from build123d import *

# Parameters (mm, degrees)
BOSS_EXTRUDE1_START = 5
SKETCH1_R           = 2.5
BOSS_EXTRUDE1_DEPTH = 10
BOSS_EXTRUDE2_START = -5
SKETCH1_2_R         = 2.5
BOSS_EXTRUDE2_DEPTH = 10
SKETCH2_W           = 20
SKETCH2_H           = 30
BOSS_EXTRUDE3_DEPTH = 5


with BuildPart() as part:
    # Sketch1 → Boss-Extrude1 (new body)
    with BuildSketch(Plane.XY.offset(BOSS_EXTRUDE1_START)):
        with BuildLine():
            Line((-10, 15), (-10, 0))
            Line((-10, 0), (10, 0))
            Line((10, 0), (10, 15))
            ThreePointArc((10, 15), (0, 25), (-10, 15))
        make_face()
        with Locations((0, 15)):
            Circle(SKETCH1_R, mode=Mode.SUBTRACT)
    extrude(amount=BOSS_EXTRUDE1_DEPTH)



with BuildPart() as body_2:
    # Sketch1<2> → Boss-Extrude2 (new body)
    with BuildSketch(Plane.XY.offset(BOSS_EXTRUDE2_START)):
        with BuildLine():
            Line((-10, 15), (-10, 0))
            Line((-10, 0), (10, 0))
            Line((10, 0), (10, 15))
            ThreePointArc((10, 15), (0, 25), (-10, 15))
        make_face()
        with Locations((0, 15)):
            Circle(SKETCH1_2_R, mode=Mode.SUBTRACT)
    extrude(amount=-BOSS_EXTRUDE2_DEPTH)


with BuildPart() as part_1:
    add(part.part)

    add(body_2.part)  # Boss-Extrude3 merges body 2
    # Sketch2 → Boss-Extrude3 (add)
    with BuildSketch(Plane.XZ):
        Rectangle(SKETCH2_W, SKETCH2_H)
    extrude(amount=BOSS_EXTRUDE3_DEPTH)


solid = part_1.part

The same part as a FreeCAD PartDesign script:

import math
import FreeCAD as App
import Part
import Sketcher
from FreeCAD import Vector
Q = App.Units.Quantity


def add_polygon(sketch, points):
    """Adds a closed chain of lines whose ends are joined by coincident constraints."""
    first, n = sketch.GeometryCount, len(points)
    for a, b in zip(points, points[1:] + points[:1]):
        sketch.addGeometry(Part.LineSegment(App.Vector(*a, 0), App.Vector(*b, 0)), False)
    for i in range(n):
        sketch.addConstraint(Sketcher.Constraint("Coincident", first + i, 2, first + (i + 1) % n, 1))

doc = App.newDocument("Part")
params = doc.addObject("Spreadsheet::Sheet", "Params")
for row, (alias, value) in enumerate([
    ("sketch1_diameter", "5 mm"),
    ("sketch1_radius", "10 mm"),
    ("sketch1_height", "15 mm"),
    ("pad1_length", "10 mm"),
    ("sketch2_diameter", "5 mm"),
    ("sketch2_radius", "10 mm"),
    ("sketch2_height", "15 mm"),
    ("pad2_length", "10 mm"),
    ("sketch3_width", "20 mm"),
    ("sketch3_height", "30 mm"),
    ("pad3_length", "5 mm"),
], start=1):
    params.set(f"A{row}", alias)
    params.set(f"B{row}", "=" + value)
    params.setAlias(f"B{row}", alias)

body = doc.addObject("PartDesign::Body", "Body")

# Sketch on XY plane
sketch1 = body.newObject("Sketcher::SketchObject", "Sketch")
sketch1.AttachmentSupport = (doc.getObject("XY_Plane"), [""])
sketch1.MapMode = "FlatFace"
sketch1.AttachmentOffset = App.Placement(Vector(0, 0, 5), App.Rotation())
sketch1.addGeometry([
    Part.LineSegment(Vector(-10, 15, 0), Vector(-10, 0, 0)),  # 0
    Part.LineSegment(Vector(-10, 0, 0), Vector(10, 0, 0)),  # 1
    Part.LineSegment(Vector(10, 0, 0), Vector(10, 15, 0)),  # 2
    Part.ArcOfCircle(Part.Circle(Vector(0, 15, 0), Vector(0, 0, 1), 10), math.radians(0), math.radians(180)),  # 3
    Part.Circle(Vector(0, 15, 0), Vector(0, 0, 1), 2.5),  # 4
], False)
sketch1.addConstraint([
    Sketcher.Constraint("Coincident", 0, 2, 1, 1),
    Sketcher.Constraint("Coincident", 1, 2, 2, 1),
    Sketcher.Constraint("Tangent", 2, 2, 3, 1),
    Sketcher.Constraint("Tangent", 3, 2, 0, 1),
    Sketcher.Constraint("Vertical", 0),
    Sketcher.Constraint("Horizontal", 1),
    Sketcher.Constraint("Vertical", 2),
    Sketcher.Constraint("Coincident", 4, 3, 3, 3),
    Sketcher.Constraint("Symmetric", 0, 2, 1, 2, -1, 1),
    Sketcher.Constraint("Diameter", 4, Q("5 mm")),
    Sketcher.Constraint("Radius", 3, Q("10 mm")),
    Sketcher.Constraint("DistanceY", 0, 2, 0, 1, Q("15 mm")),
])
sketch1.setExpression("Constraints[9]", "Params.sketch1_diameter")
sketch1.setExpression("Constraints[10]", "Params.sketch1_radius")
sketch1.setExpression("Constraints[11]", "Params.sketch1_height")
pad1 = body.newObject("PartDesign::Pad", "Pad")
pad1.Profile = sketch1
pad1.setExpression("Length", "Params.pad1_length")
body2 = doc.addObject("PartDesign::Body", "Body001")

# Sketch on XY plane
sketch2 = body2.newObject("Sketcher::SketchObject", "Sketch001")
sketch2.AttachmentSupport = (doc.getObject("XY_Plane001"), [""])
sketch2.MapMode = "FlatFace"
sketch2.AttachmentOffset = App.Placement(Vector(0, 0, -5), App.Rotation())
sketch2.addGeometry([
    Part.LineSegment(Vector(-10, 15, 0), Vector(-10, 0, 0)),  # 0
    Part.LineSegment(Vector(-10, 0, 0), Vector(10, 0, 0)),  # 1
    Part.LineSegment(Vector(10, 0, 0), Vector(10, 15, 0)),  # 2
    Part.ArcOfCircle(Part.Circle(Vector(0, 15, 0), Vector(0, 0, 1), 10), math.radians(0), math.radians(180)),  # 3
    Part.Circle(Vector(0, 15, 0), Vector(0, 0, 1), 2.5),  # 4
], False)
sketch2.addConstraint([
    Sketcher.Constraint("Coincident", 0, 2, 1, 1),
    Sketcher.Constraint("Coincident", 1, 2, 2, 1),
    Sketcher.Constraint("Tangent", 2, 2, 3, 1),
    Sketcher.Constraint("Tangent", 3, 2, 0, 1),
    Sketcher.Constraint("Vertical", 0),
    Sketcher.Constraint("Horizontal", 1),
    Sketcher.Constraint("Vertical", 2),
    Sketcher.Constraint("Coincident", 4, 3, 3, 3),
    Sketcher.Constraint("Symmetric", 0, 2, 1, 2, -1, 1),
    Sketcher.Constraint("Diameter", 4, Q("5 mm")),
    Sketcher.Constraint("Radius", 3, Q("10 mm")),
    Sketcher.Constraint("DistanceY", 0, 2, 0, 1, Q("15 mm")),
])
sketch2.setExpression("Constraints[9]", "Params.sketch2_diameter")
sketch2.setExpression("Constraints[10]", "Params.sketch2_radius")
sketch2.setExpression("Constraints[11]", "Params.sketch2_height")
pad2 = body2.newObject("PartDesign::Pad", "Pad001")
pad2.Profile = sketch2
pad2.setExpression("Length", "Params.pad2_length")
pad2.Reversed = True
body.AllowCompound = True
doc.recompute()

boolean = body.newObject("PartDesign::Boolean", "Boolean")
boolean.Type = "Fuse"
boolean.addObjects([body2])

# Sketch on XZ plane
sketch3 = body.newObject("Sketcher::SketchObject", "Sketch002")
sketch3.AttachmentSupport = (doc.getObject("XZ_Plane"), [""])
sketch3.MapMode = "FlatFace"
add_polygon(sketch3, [(-10, 15), (-10, -15), (10, -15), (10, 15)])  # lines 0-3
sketch3.addConstraint([
    Sketcher.Constraint("Vertical", 0),
    Sketcher.Constraint("Horizontal", 1),
    Sketcher.Constraint("Vertical", 2),
    Sketcher.Constraint("Horizontal", 3),
    Sketcher.Constraint("Symmetric", 0, 2, 2, 2, -1, 1),
    Sketcher.Constraint("DistanceX", 1, 1, 1, 2, Q("20 mm")),
    Sketcher.Constraint("DistanceY", 0, 2, 0, 1, Q("30 mm")),
])
sketch3.setExpression("Constraints[9]", "Params.sketch3_width")
sketch3.setExpression("Constraints[10]", "Params.sketch3_height")
pad3 = body.newObject("PartDesign::Pad", "Pad002")
pad3.Profile = sketch3
pad3.setExpression("Length", "Params.pad3_length")

doc.recompute()
